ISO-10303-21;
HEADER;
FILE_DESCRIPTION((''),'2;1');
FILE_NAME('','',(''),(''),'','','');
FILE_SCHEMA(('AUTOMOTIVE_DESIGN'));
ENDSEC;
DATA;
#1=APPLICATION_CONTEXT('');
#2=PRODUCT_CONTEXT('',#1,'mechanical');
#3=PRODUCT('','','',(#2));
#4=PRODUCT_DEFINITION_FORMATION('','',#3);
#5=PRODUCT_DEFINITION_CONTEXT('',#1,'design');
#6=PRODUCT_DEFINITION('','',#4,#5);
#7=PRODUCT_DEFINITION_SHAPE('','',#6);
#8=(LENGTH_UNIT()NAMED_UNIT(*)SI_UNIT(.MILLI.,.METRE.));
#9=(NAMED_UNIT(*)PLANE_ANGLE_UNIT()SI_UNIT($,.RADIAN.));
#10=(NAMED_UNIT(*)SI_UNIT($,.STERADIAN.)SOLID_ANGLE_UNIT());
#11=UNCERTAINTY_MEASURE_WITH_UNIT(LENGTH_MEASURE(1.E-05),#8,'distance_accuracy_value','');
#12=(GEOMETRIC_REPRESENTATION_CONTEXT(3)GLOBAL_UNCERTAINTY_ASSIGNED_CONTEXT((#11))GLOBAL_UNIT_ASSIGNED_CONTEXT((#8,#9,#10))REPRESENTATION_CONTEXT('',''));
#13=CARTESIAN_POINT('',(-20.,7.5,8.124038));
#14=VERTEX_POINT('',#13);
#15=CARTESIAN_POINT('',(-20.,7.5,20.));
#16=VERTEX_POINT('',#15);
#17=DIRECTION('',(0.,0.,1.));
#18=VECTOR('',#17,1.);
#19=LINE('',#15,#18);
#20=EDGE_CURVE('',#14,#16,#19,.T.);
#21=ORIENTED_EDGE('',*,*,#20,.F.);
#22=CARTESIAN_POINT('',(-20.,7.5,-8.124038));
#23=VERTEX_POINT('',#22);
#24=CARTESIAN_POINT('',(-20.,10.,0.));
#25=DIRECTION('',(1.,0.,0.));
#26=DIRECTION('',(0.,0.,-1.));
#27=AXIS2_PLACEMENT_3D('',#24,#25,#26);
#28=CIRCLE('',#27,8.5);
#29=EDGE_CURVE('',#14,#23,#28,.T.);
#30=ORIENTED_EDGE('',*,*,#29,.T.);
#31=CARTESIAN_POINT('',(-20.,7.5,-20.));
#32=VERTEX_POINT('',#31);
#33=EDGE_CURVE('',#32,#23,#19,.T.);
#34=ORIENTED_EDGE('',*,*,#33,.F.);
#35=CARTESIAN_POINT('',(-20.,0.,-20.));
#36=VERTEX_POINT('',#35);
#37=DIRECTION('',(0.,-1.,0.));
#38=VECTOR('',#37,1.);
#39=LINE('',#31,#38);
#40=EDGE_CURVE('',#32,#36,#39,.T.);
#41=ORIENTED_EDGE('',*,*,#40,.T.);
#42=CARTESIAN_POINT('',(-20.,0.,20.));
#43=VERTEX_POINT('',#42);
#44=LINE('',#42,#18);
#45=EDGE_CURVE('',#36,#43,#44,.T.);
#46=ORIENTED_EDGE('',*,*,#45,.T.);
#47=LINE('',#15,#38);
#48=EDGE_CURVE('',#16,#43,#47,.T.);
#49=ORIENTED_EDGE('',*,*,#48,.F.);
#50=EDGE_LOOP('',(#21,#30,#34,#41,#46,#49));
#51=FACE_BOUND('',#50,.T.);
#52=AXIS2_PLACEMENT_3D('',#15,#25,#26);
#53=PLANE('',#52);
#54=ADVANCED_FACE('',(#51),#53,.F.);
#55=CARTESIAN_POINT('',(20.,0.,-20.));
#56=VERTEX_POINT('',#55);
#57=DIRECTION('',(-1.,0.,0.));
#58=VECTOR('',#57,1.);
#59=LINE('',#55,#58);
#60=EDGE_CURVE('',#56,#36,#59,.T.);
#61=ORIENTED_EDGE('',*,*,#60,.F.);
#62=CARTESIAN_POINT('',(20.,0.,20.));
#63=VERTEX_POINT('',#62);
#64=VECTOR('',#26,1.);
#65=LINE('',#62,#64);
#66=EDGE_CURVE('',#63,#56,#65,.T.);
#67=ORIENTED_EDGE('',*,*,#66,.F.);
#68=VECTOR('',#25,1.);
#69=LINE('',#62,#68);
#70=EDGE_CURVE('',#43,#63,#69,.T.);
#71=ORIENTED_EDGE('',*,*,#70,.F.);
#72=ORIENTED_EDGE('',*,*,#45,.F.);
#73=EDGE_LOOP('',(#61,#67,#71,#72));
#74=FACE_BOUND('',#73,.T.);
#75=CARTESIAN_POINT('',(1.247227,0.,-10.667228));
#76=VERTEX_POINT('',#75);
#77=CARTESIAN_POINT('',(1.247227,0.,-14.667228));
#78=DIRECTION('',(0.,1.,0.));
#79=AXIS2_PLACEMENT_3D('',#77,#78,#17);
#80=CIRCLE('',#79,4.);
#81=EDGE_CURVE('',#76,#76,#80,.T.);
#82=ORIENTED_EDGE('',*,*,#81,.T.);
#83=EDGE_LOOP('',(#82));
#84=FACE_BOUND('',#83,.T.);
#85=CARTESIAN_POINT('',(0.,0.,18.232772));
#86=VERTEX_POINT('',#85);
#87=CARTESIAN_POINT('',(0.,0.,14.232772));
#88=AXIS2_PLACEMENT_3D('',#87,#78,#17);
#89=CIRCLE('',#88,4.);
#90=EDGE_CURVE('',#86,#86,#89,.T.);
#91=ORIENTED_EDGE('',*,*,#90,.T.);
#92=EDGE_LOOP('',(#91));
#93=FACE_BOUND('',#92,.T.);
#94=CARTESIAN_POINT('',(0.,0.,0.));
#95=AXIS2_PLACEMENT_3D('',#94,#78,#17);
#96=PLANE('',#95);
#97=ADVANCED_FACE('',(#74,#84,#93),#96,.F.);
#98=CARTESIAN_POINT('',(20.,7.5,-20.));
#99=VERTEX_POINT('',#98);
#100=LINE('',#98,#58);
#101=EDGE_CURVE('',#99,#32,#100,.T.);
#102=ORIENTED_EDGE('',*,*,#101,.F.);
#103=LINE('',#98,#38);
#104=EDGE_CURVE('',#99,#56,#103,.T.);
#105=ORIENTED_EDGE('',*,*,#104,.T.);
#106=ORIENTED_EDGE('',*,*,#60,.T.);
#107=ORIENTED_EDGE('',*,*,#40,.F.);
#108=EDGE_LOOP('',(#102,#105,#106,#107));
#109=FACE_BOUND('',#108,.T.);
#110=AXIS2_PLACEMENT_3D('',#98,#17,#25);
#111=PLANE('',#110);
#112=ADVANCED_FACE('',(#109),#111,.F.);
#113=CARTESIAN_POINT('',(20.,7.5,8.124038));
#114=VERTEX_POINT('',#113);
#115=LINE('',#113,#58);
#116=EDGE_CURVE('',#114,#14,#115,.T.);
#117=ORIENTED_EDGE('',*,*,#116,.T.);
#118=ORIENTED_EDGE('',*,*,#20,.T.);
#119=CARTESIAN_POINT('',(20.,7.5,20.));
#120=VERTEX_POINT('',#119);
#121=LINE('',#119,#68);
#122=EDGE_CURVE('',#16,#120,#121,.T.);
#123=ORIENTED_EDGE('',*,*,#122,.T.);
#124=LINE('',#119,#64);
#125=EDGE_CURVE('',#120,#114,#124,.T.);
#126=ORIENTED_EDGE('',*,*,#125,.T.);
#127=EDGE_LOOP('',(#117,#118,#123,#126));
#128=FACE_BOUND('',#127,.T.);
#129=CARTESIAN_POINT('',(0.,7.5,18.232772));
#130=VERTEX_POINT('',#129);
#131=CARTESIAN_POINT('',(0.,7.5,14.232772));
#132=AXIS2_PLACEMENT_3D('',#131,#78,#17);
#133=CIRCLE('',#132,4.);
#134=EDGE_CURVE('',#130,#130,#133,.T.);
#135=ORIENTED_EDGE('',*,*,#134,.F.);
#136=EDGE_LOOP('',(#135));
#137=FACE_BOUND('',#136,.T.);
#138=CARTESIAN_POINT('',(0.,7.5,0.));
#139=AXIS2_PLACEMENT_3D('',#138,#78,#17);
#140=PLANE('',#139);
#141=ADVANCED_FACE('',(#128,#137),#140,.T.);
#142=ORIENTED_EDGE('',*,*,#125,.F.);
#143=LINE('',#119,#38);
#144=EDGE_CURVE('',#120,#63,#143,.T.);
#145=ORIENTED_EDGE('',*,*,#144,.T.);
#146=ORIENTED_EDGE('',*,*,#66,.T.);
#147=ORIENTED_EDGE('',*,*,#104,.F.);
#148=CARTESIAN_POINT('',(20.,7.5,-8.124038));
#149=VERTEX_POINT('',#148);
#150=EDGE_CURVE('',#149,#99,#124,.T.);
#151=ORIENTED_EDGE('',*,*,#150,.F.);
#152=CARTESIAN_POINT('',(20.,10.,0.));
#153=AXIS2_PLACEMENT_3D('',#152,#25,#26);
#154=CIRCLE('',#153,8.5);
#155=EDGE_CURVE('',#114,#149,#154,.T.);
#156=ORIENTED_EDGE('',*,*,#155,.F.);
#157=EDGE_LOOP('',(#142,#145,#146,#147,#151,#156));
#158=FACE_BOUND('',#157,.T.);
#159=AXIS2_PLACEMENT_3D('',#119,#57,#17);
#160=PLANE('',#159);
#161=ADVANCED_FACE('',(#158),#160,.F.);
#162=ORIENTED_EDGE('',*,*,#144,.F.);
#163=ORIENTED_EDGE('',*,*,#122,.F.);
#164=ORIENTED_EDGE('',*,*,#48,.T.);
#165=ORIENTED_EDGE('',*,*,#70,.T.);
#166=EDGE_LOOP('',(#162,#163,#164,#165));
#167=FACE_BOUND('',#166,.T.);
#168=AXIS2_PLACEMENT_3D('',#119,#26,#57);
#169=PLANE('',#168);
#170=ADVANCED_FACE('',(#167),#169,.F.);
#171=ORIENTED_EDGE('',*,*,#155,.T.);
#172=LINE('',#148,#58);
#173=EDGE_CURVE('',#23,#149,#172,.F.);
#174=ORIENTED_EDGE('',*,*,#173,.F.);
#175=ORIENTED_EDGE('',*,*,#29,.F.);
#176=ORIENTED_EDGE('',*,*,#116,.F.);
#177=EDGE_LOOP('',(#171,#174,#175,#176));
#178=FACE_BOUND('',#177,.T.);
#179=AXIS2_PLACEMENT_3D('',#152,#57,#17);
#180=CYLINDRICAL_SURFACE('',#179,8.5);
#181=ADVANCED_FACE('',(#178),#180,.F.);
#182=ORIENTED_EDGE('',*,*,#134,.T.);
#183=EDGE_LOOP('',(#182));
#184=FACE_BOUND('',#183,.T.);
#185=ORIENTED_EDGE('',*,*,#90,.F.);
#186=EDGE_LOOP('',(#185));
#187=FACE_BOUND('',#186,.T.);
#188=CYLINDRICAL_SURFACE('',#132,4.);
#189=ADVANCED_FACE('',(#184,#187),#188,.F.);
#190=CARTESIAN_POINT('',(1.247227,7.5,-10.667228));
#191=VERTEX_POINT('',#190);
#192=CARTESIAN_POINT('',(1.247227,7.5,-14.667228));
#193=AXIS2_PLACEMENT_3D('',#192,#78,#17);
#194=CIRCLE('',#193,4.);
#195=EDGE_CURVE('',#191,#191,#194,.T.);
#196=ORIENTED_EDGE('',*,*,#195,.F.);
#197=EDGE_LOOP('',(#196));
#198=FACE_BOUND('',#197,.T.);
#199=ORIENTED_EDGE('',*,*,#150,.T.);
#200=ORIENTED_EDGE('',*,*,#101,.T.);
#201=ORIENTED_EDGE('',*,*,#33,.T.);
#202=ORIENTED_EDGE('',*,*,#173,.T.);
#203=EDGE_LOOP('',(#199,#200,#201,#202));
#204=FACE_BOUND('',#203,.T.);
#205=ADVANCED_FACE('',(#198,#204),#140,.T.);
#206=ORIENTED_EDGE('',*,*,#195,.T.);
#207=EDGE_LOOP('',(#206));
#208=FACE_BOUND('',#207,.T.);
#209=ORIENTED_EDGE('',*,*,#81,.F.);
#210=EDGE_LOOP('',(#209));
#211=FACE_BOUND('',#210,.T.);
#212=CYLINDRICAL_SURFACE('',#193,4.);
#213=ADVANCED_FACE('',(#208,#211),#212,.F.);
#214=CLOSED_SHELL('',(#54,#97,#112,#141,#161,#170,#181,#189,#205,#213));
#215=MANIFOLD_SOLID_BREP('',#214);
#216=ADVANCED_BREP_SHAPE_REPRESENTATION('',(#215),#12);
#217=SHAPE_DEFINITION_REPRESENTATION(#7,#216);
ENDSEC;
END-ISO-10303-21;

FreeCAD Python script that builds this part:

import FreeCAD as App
import Part
import Sketcher

doc = App.newDocument("Part")
body = doc.addObject("PartDesign::Body", "Body")

sketch1 = body.newObject("Sketcher::SketchObject", "Sketch")
sketch1.AttachmentSupport = (doc.getObject("XZ_Plane"), [""])
sketch1.MapMode = "FlatFace"
sketch1.addGeometry([
    Part.LineSegment(App.Vector(-20, -20, 0), App.Vector(-20, 20, 0)),
    Part.LineSegment(App.Vector(-20, 20, 0), App.Vector(20, 20, 0)),
    Part.LineSegment(App.Vector(20, 20, 0), App.Vector(20, -20, 0)),
    Part.LineSegment(App.Vector(20, -20, 0), App.Vector(-20, -20, 0)),
], False)
sketch1.addConstraint([
    Sketcher.Constraint("Coincident", 0, 2, 1, 1),
    Sketcher.Constraint("Coincident", 1, 2, 2, 1),
    Sketcher.Constraint("Coincident", 2, 2, 3, 1),
    Sketcher.Constraint("Coincident", 3, 2, 0, 1),
    Sketcher.Constraint("Vertical", 0),
    Sketcher.Constraint("Horizontal", 1),
    Sketcher.Constraint("Vertical", 2),
    Sketcher.Constraint("Horizontal", 3),
    Sketcher.Constraint("Symmetric", 0, 2, 2, 2, -1, 1),
    Sketcher.Constraint("Equal", 3, 0),
    Sketcher.Constraint("DistanceX", 1, 1, 1, 2, 40.0),
])
pad1 = body.newObject("PartDesign::Pad", "Pad")
pad1.Profile = sketch1
pad1.Length = 7.5
pad1.Reversed = True

sketch2 = body.newObject("Sketcher::SketchObject", "Sketch001")
sketch2.AttachmentSupport = (doc.getObject("YZ_Plane"), [""])
sketch2.MapMode = "FlatFace"
sketch2.addGeometry(Part.Circle(App.Vector(10, 0, 0), App.Vector(0, 0, 1), 8), False)
sketch2.addConstraint([
    Sketcher.Constraint("PointOnObject", 0, 3, -1),
    Sketcher.Constraint("Diameter", 0, 17.0),
    Sketcher.Constraint("DistanceX", -1, 1, 0, 3, 10.0),
])
pocket1 = body.newObject("PartDesign::Pocket", "Pocket")
pocket1.Profile = sketch2
pocket1.Type = "ThroughAll"
pocket1.Midplane = True

sketch3 = body.newObject("Sketcher::SketchObject", "Sketch002")
sketch3.AttachmentSupport = (doc.getObject("XZ_Plane"), [""])
sketch3.MapMode = "FlatFace"
sketch3.AttachmentOffset = App.Placement(App.Vector(0, 0, -7.5), App.Rotation())
sketch3.addGeometry([
    Part.Circle(App.Vector(1.2, -14.7, 0), App.Vector(0, 0, 1), 4),
    Part.Circle(App.Vector(0, 14.2, 0), App.Vector(0, 0, 1), 4),
], False)
sketch3.addConstraint([
    Sketcher.Constraint("Equal", 0, 1),
    Sketcher.Constraint("PointOnObject", 1, 3, -2),
    Sketcher.Constraint("Diameter", 0, 8.0),
    Sketcher.Constraint("DistanceY", 0, 3, 1, 3, 28.9),
    Sketcher.Constraint("DistanceY", 0, 3, -1, 1, 14.667228),
    Sketcher.Constraint("DistanceX", -1, 1, 0, 3, 1.247227),
])
doc.recompute()
hole = body.newObject("PartDesign::Hole", "Hole")
hole.Profile = sketch3
hole.ThreadType = "None"
hole.Diameter = 8
hole.DepthType = "ThroughAll"
hole.Reversed = True

doc.recompute()
